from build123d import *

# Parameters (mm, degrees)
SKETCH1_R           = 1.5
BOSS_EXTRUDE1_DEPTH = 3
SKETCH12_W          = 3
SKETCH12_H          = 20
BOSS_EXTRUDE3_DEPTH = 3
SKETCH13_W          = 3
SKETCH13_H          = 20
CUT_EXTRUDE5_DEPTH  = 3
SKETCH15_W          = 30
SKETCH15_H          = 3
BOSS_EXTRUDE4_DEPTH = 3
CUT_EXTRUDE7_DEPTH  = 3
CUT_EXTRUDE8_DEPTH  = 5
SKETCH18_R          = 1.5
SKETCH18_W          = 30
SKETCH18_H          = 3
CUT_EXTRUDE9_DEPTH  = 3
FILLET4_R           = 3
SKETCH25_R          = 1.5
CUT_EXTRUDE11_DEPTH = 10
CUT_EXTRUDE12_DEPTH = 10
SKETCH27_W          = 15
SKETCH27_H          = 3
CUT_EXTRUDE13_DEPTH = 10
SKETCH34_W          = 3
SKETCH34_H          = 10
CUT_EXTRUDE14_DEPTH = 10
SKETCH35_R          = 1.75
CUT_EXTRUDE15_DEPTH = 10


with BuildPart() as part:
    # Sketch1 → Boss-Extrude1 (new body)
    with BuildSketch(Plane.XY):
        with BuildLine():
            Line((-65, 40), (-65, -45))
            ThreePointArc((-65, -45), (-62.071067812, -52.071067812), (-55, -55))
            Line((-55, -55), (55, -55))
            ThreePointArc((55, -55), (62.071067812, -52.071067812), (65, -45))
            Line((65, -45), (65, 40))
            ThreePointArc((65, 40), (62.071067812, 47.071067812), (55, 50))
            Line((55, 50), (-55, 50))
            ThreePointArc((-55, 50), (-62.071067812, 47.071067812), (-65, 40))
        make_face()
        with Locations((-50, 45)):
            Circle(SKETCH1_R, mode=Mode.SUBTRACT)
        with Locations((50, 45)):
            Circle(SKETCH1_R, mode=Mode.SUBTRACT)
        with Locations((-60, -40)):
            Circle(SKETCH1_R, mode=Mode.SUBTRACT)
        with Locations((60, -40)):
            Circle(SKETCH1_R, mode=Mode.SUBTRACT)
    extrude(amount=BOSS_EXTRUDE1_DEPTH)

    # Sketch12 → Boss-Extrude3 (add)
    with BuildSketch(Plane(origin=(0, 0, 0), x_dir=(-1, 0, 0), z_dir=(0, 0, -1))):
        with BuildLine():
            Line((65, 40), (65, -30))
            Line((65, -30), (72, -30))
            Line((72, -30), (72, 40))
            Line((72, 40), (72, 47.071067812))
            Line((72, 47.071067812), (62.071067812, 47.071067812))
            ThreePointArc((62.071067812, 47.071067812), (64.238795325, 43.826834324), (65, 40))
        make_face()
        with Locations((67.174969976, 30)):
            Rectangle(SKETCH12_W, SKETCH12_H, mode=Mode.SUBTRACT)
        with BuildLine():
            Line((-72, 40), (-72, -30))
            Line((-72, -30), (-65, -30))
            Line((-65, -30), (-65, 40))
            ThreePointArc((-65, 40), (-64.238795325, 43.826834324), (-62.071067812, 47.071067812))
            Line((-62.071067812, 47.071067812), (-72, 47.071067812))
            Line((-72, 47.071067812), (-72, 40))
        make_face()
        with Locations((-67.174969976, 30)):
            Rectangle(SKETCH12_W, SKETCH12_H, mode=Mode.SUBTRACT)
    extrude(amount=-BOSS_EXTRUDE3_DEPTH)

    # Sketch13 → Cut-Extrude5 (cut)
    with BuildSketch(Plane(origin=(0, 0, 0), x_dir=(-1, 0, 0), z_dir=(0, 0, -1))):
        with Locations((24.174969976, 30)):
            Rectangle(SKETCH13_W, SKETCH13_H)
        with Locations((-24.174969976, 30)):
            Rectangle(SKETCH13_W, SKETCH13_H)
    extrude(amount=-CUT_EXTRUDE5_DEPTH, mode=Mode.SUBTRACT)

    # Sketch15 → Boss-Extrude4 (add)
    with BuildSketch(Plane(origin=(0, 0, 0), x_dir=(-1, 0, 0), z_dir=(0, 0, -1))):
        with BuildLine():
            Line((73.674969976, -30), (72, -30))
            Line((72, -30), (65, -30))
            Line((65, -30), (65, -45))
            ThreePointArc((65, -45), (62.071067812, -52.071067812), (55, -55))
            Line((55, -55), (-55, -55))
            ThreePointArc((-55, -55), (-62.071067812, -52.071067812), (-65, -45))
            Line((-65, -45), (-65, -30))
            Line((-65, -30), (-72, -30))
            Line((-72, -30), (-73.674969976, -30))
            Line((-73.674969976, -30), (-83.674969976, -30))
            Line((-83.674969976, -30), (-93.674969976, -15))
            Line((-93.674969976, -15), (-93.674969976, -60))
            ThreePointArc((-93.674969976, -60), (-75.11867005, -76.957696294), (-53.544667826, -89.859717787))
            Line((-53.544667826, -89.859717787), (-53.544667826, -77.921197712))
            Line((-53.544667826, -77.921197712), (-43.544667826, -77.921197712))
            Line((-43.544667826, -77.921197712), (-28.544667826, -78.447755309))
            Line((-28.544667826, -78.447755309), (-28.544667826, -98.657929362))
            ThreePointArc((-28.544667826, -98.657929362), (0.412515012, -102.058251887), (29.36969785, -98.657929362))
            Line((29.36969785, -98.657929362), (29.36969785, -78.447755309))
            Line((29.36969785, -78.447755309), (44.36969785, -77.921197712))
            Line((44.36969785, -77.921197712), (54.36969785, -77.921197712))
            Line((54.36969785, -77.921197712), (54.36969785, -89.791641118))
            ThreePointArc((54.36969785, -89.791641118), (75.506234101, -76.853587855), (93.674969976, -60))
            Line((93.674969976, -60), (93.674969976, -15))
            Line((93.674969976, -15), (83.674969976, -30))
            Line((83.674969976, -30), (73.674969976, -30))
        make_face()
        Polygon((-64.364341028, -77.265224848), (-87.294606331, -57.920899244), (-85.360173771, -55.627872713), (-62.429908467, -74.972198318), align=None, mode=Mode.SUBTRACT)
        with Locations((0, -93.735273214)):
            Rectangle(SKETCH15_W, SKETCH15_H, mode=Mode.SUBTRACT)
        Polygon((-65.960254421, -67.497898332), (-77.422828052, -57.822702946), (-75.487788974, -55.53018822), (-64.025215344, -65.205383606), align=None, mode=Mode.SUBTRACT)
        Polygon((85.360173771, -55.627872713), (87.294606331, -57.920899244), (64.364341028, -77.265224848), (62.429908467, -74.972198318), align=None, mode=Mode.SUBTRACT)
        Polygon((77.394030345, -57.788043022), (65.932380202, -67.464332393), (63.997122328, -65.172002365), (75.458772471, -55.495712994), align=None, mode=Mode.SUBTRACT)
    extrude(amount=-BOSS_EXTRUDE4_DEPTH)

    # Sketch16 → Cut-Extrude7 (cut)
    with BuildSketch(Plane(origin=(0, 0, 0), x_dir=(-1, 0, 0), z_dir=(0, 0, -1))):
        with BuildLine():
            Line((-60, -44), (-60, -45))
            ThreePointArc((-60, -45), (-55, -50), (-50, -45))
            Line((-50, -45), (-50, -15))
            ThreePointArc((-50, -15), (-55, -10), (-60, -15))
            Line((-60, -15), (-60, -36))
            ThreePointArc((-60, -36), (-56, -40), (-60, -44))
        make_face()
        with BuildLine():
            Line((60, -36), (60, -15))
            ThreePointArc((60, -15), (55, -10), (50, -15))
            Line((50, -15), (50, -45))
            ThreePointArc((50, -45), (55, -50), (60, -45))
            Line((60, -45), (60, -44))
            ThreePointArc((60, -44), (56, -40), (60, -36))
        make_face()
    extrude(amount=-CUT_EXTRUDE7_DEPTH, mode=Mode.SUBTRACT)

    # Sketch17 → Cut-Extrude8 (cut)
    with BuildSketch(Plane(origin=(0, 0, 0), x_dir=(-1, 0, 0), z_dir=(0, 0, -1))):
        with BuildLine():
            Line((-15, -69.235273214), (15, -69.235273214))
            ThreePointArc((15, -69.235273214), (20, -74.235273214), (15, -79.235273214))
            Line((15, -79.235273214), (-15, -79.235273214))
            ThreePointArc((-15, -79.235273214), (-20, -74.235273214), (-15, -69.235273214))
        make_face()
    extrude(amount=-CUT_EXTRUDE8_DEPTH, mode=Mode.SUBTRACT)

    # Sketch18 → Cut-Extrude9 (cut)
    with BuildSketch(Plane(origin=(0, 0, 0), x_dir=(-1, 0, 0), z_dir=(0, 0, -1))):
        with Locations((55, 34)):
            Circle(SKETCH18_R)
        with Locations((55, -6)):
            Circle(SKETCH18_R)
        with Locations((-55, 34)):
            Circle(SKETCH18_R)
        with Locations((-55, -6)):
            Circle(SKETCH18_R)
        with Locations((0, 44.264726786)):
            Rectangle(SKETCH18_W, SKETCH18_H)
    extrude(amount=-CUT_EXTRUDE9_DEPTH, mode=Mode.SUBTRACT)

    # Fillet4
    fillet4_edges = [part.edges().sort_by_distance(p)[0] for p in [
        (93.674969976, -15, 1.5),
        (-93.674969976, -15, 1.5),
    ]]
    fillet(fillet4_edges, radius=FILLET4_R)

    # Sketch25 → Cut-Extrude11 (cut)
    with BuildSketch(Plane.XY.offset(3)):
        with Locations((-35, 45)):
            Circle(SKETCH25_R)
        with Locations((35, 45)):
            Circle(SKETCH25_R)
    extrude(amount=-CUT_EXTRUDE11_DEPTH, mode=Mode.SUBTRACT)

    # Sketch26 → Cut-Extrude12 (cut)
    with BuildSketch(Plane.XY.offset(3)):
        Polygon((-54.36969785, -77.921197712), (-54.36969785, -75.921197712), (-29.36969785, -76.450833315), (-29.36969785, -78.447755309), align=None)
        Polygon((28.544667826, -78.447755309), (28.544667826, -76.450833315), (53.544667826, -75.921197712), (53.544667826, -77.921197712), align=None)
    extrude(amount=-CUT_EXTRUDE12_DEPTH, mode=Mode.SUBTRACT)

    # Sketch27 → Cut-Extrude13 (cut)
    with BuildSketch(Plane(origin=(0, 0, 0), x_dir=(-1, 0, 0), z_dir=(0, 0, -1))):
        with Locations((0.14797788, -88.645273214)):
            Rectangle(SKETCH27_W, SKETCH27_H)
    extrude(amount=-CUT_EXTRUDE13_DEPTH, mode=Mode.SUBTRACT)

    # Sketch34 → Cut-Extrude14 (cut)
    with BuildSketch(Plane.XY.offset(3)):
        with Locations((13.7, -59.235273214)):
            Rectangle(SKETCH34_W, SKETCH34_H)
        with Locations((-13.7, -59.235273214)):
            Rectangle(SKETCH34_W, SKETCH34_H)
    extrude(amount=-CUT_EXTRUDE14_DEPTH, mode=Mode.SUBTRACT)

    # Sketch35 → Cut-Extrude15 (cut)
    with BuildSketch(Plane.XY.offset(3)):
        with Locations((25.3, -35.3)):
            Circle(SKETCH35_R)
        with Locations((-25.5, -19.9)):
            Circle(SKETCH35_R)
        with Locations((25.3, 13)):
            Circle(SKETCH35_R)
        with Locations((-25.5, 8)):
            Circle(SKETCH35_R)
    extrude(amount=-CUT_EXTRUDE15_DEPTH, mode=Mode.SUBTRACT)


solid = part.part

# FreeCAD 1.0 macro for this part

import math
import FreeCAD as App
import Part
import Sketcher
from FreeCAD import Vector


def edges_at(feature, points):
    """Names of the edges that pass closest to the given points."""
    edges = feature.Shape.Edges
    near = lambda p: min(range(len(edges)), key=lambda i: edges[i].distToShape(Part.Vertex(*p))[0])
    return sorted({f"Edge{near(p) + 1}" for p in points})

doc = App.newDocument("Part")
body = doc.addObject("PartDesign::Body", "Body")

# Sketch on XY plane
sketch1 = body.newObject("Sketcher::SketchObject", "Sketch")
sketch1.AttachmentSupport = (doc.getObject("XY_Plane"), [""])
sketch1.MapMode = "FlatFace"
sketch1.addGeometry([
    Part.LineSegment(Vector(-65, 40, 0), Vector(-65, -45, 0)),  # 0
    Part.ArcOfCircle(Part.Circle(Vector(-55, -45, 0), Vector(0, 0, 1), 10), math.radians(180), math.radians(270)),  # 1
    Part.LineSegment(Vector(-55, -55, 0), Vector(55, -55, 0)),  # 2
    Part.ArcOfCircle(Part.Circle(Vector(55, -45, 0), Vector(0, 0, 1), 10), math.radians(-90), math.radians(0)),  # 3
    Part.LineSegment(Vector(65, -45, 0), Vector(65, 40, 0)),  # 4
    Part.ArcOfCircle(Part.Circle(Vector(55, 40, 0), Vector(0, 0, 1), 10), math.radians(0), math.radians(90)),  # 5
    Part.LineSegment(Vector(55, 50, 0), Vector(-55, 50, 0)),  # 6
    Part.ArcOfCircle(Part.Circle(Vector(-55, 40, 0), Vector(0, 0, 1), 10), math.radians(90), math.radians(180)),  # 7
    Part.Circle(Vector(-60, -40, 0), Vector(0, 0, 1), 1.5),  # 8
    Part.Circle(Vector(60, -40, 0), Vector(0, 0, 1), 1.5),  # 9
    Part.Circle(Vector(-50, 45, 0), Vector(0, 0, 1), 1.5),  # 10
    Part.Circle(Vector(50, 45, 0), Vector(0, 0, 1), 1.5),  # 11
], False)
sketch1.addConstraint([
    Sketcher.Constraint("Tangent", 0, 2, 1, 1),
    Sketcher.Constraint("Tangent", 1, 2, 2, 1),
    Sketcher.Constraint("Tangent", 2, 2, 3, 1),
    Sketcher.Constraint("Tangent", 3, 2, 4, 1),
    Sketcher.Constraint("Tangent", 4, 2, 5, 1),
    Sketcher.Constraint("Tangent", 5, 2, 6, 1),
    Sketcher.Constraint("Tangent", 6, 2, 7, 1),
    Sketcher.Constraint("Tangent", 7, 2, 0, 1),
    Sketcher.Constraint("Vertical", 0),
    Sketcher.Constraint("Horizontal", 2),
    Sketcher.Constraint("Vertical", 4),
    Sketcher.Constraint("Horizontal", 6),
    Sketcher.Constraint("Equal", 1, 3),
    Sketcher.Constraint("Equal", 3, 5),
    Sketcher.Constraint("Equal", 5, 7),
    Sketcher.Constraint("Equal", 8, 9),
    Sketcher.Constraint("Equal", 9, 10),
    Sketcher.Constraint("Equal", 10, 11),
    Sketcher.Constraint("Symmetric", 8, 3, 9, 3, -2),
    Sketcher.Constraint("Symmetric", 10, 3, 11, 3, -2),
    Sketcher.Constraint("Diameter", 8, 3.0),
    Sketcher.Constraint("Radius", 1, 10.0),
    Sketcher.Constraint("DistanceX", 2, 1, 2, 2, 110.0),
    Sketcher.Constraint("DistanceY", 0, 2, 0, 1, 85.0),
    Sketcher.Constraint("DistanceX", 1, 3, -1, 1, 55.0),
    Sketcher.Constraint("DistanceY", 1, 3, -1, 1, 45.0),
    Sketcher.Constraint("DistanceX", 8, 3, -1, 1, 60.0),
    Sketcher.Constraint("DistanceY", 8, 3, -1, 1, 40.0),
    Sketcher.Constraint("DistanceX", 10, 3, -1, 1, 50.0),
    Sketcher.Constraint("DistanceY", -1, 1, 10, 3, 45.0),
])
pad1 = body.newObject("PartDesign::Pad", "Pad")
pad1.Profile = sketch1
pad1.Length = 3

# Sketch on XY plane
sketch2 = body.newObject("Sketcher::SketchObject", "Sketch001")
sketch2.AttachmentSupport = (doc.getObject("XY_Plane"), [""])
sketch2.MapMode = "FlatFace"
sketch2.addGeometry([
    Part.LineSegment(Vector(-65, 40, 0), Vector(-65, -30, 0)),  # 0
    Part.LineSegment(Vector(-65, -30, 0), Vector(-72, -30, 0)),  # 1
    Part.LineSegment(Vector(-72, -30, 0), Vector(-72, 47.1, 0)),  # 2
    Part.LineSegment(Vector(-72, 47.1, 0), Vector(-62.1, 47.1, 0)),  # 3
    Part.ArcOfCircle(Part.Circle(Vector(-55, 40, 0), Vector(0, 0, 1), 10), math.radians(135), math.radians(180)),  # 4
    Part.LineSegment(Vector(-68.7, 20, 0), Vector(-65.7, 20, 0)),  # 5
    Part.LineSegment(Vector(-65.7, 20, 0), Vector(-65.7, 40, 0)),  # 6
    Part.LineSegment(Vector(-65.7, 40, 0), Vector(-68.7, 40, 0)),  # 7
    Part.LineSegment(Vector(-68.7, 40, 0), Vector(-68.7, 20, 0)),  # 8
    Part.LineSegment(Vector(72, -30, 0), Vector(65, -30, 0)),  # 9
    Part.LineSegment(Vector(65, -30, 0), Vector(65, 40, 0)),  # 10
    Part.ArcOfCircle(Part.Circle(Vector(55, 40, 0), Vector(0, 0, 1), 10), math.radians(0), math.radians(45)),  # 11
    Part.LineSegment(Vector(62.1, 47.1, 0), Vector(72, 47.1, 0)),  # 12
    Part.LineSegment(Vector(72, 47.1, 0), Vector(72, -30, 0)),  # 13
    Part.LineSegment(Vector(65.7, 20, 0), Vector(68.7, 20, 0)),  # 14
    Part.LineSegment(Vector(68.7, 20, 0), Vector(68.7, 40, 0)),  # 15
    Part.LineSegment(Vector(68.7, 40, 0), Vector(65.7, 40, 0)),  # 16
    Part.LineSegment(Vector(65.7, 40, 0), Vector(65.7, 20, 0)),  # 17
], False)
sketch2.addConstraint([
    Sketcher.Constraint("Coincident", 0, 2, 1, 1),
    Sketcher.Constraint("Coincident", 1, 2, 2, 1),
    Sketcher.Constraint("Coincident", 2, 2, 3, 1),
    Sketcher.Constraint("Coincident", 3, 2, 4, 1),
    Sketcher.Constraint("Tangent", 4, 2, 0, 1),
    Sketcher.Constraint("Coincident", 5, 2, 6, 1),
    Sketcher.Constraint("Coincident", 6, 2, 7, 1),
    Sketcher.Constraint("Coincident", 7, 2, 8, 1),
    Sketcher.Constraint("Coincident", 8, 2, 5, 1),
    Sketcher.Constraint("Coincident", 9, 2, 10, 1),
    Sketcher.Constraint("Tangent", 10, 2, 11, 1),
    Sketcher.Constraint("Coincident", 11, 2, 12, 1),
    Sketcher.Constraint("Coincident", 12, 2, 13, 1),
    Sketcher.Constraint("Coincident", 13, 2, 9, 1),
    Sketcher.Constraint("Coincident", 14, 2, 15, 1),
    Sketcher.Constraint("Coincident", 15, 2, 16, 1),
    Sketcher.Constraint("Coincident", 16, 2, 17, 1),
    Sketcher.Constraint("Coincident", 17, 2, 14, 1),
    Sketcher.Constraint("Vertical", 0),
    Sketcher.Constraint("Horizontal", 1),
    Sketcher.Constraint("Vertical", 2),
    Sketcher.Constraint("Horizontal", 3),
    Sketcher.Constraint("Horizontal", 5),
    Sketcher.Constraint("Vertical", 6),
    Sketcher.Constraint("Horizontal", 7),
    Sketcher.Constraint("Vertical", 8),
    Sketcher.Constraint("Horizontal", 9),
    Sketcher.Constraint("Vertical", 10),
    Sketcher.Constraint("Horizontal", 12),
    Sketcher.Constraint("Vertical", 13),
    Sketcher.Constraint("Horizontal", 14),
    Sketcher.Constraint("Vertical", 15),
    Sketcher.Constraint("Horizontal", 16),
    Sketcher.Constraint("Vertical", 17),
    Sketcher.Constraint("Equal", 4, 11),
    Sketcher.Constraint("Symmetric", 4, 3, 11, 3, -2),
    Sketcher.Constraint("Symmetric", 2, 2, 12, 2, -2),
    Sketcher.Constraint("Symmetric", 8, 2, 14, 2, -2),
    Sketcher.Constraint("Symmetric", 6, 2, 16, 2, -2),
    Sketcher.Constraint("Horizontal", 4, 2, 6, 2),
    Sketcher.Constraint("Horizontal", 1, 2, 9, 2),
    Sketcher.Constraint("Radius", 4, 10.0),
    Sketcher.Constraint("DistanceX", 1, 2, 1, 1, 7.0),
    Sketcher.Constraint("DistanceX", 5, 1, 5, 2, 3.0),
    Sketcher.Constraint("DistanceY", 0, 2, 0, 1, 70.0),
    Sketcher.Constraint("DistanceY", 6, 1, 6, 2, 20.0),
    Sketcher.Constraint("DistanceX", 4, 3, -1, 1, 55.0),
    Sketcher.Constraint("DistanceY", -1, 1, 4, 3, 40.0),
    Sketcher.Constraint("DistanceX", 3, 1, 3, 2, 9.928932),
    Sketcher.Constraint("DistanceX", 5, 2, -1, 1, 65.67497),
])
pad2 = body.newObject("PartDesign::Pad", "Pad001")
pad2.Profile = sketch2
pad2.Length = 3

# Sketch on XY plane
sketch3 = body.newObject("Sketcher::SketchObject", "Sketch002")
sketch3.AttachmentSupport = (doc.getObject("XY_Plane"), [""])
sketch3.MapMode = "FlatFace"
sketch3.addGeometry([
    Part.LineSegment(Vector(-22.7, 40, 0), Vector(-22.7, 20, 0)),  # 0
    Part.LineSegment(Vector(-22.7, 20, 0), Vector(-25.7, 20, 0)),  # 1
    Part.LineSegment(Vector(-25.7, 20, 0), Vector(-25.7, 40, 0)),  # 2
    Part.LineSegment(Vector(-25.7, 40, 0), Vector(-22.7, 40, 0)),  # 3
    Part.LineSegment(Vector(25.7, 40, 0), Vector(25.7, 20, 0)),  # 4
    Part.LineSegment(Vector(25.7, 20, 0), Vector(22.7, 20, 0)),  # 5
    Part.LineSegment(Vector(22.7, 20, 0), Vector(22.7, 40, 0)),  # 6
    Part.LineSegment(Vector(22.7, 40, 0), Vector(25.7, 40, 0)),  # 7
], False)
sketch3.addConstraint([
    Sketcher.Constraint("Coincident", 0, 2, 1, 1),
    Sketcher.Constraint("Coincident", 1, 2, 2, 1),
    Sketcher.Constraint("Coincident", 2, 2, 3, 1),
    Sketcher.Constraint("Coincident", 3, 2, 0, 1),
    Sketcher.Constraint("Coincident", 4, 2, 5, 1),
    Sketcher.Constraint("Coincident", 5, 2, 6, 1),
    Sketcher.Constraint("Coincident", 6, 2, 7, 1),
    Sketcher.Constraint("Coincident", 7, 2, 4, 1),
    Sketcher.Constraint("Vertical", 0),
    Sketcher.Constraint("Horizontal", 1),
    Sketcher.Constraint("Vertical", 2),
    Sketcher.Constraint("Horizontal", 3),
    Sketcher.Constraint("Vertical", 4),
    Sketcher.Constraint("Horizontal", 5),
    Sketcher.Constraint("Vertical", 6),
    Sketcher.Constraint("Horizontal", 7),
    Sketcher.Constraint("Symmetric", 1, 2, 4, 2, -2),
    Sketcher.Constraint("Symmetric", 3, 2, 6, 2, -2),
    Sketcher.Constraint("DistanceX", 1, 2, 1, 1, 3.0),
    Sketcher.Constraint("DistanceY", 0, 2, 0, 1, 20.0),
    Sketcher.Constraint("DistanceY", -1, 1, 0, 2, 20.0),
    Sketcher.Constraint("DistanceX", 0, 2, -1, 1, 22.67497),
])
pocket1 = body.newObject("PartDesign::Pocket", "Pocket")
pocket1.Profile = sketch3
pocket1.Length = 3
pocket1.Reversed = True

# Sketch on XY plane
sketch4 = body.newObject("Sketcher::SketchObject", "Sketch003")
sketch4.AttachmentSupport = (doc.getObject("XY_Plane"), [""])
sketch4.MapMode = "FlatFace"
sketch4.addGeometry([
    Part.LineSegment(Vector(-65, -30, 0), Vector(-65, -45, 0)),  # 0
    Part.ArcOfCircle(Part.Circle(Vector(-55, -45, 0), Vector(0, 0, 1), 10), math.radians(180), math.radians(270)),  # 1
    Part.LineSegment(Vector(-55, -55, 0), Vector(55, -55, 0)),  # 2
    Part.ArcOfCircle(Part.Circle(Vector(55, -45, 0), Vector(0, 0, 1), 10), math.radians(-90), math.radians(0)),  # 3
    Part.LineSegment(Vector(65, -45, 0), Vector(65, -30, 0)),  # 4
    Part.LineSegment(Vector(65, -30, 0), Vector(83.7, -30, 0)),  # 5
    Part.LineSegment(Vector(83.7, -30, 0), Vector(93.7, -15, 0)),  # 6
    Part.LineSegment(Vector(93.7, -15, 0), Vector(93.7, -60, 0)),  # 7
    Part.ArcOfCircle(Part.Circle(Vector(0.5, 23.3, 0), Vector(0, 0, 1), 125), math.radians(-65), math.radians(-42)),  # 8
    Part.LineSegment(Vector(53.5, -89.9, 0), Vector(53.5, -77.9, 0)),  # 9
    Part.LineSegment(Vector(53.5, -77.9, 0), Vector(43.5, -77.9, 0)),  # 10
    Part.LineSegment(Vector(43.5, -77.9, 0), Vector(28.5, -78.4, 0)),  # 11
    Part.LineSegment(Vector(28.5, -78.4, 0), Vector(28.5, -98.7, 0)),  # 12
    Part.ArcOfCircle(Part.Circle(Vector(-0.4, 22.9, 0), Vector(0, 0, 1), 125), math.radians(-103), math.radians(-77)),  # 13
    Part.LineSegment(Vector(-29.4, -98.7, 0), Vector(-29.4, -78.4, 0)),  # 14
    Part.LineSegment(Vector(-29.4, -78.4, 0), Vector(-44.4, -77.9, 0)),  # 15
    Part.LineSegment(Vector(-44.4, -77.9, 0), Vector(-54.4, -77.9, 0)),  # 16
    Part.LineSegment(Vector(-54.4, -77.9, 0), Vector(-54.4, -89.8, 0)),  # 17
    Part.ArcOfCircle(Part.Circle(Vector(0, 22.8, 0), Vector(0, 0, 1), 125), math.radians(-139), math.radians(-116)),  # 18
    Part.LineSegment(Vector(-93.7, -60, 0), Vector(-93.7, -15, 0)),  # 19
    Part.LineSegment(Vector(-93.7, -15, 0), Vector(-83.7, -30, 0)),  # 20
    Part.LineSegment(Vector(-83.7, -30, 0), Vector(-65, -30, 0)),  # 21
    Part.LineSegment(Vector(-15, -95.2, 0), Vector(15, -95.2, 0)),  # 22
    Part.LineSegment(Vector(15, -95.2, 0), Vector(15, -92.2, 0)),  # 23
    Part.LineSegment(Vector(15, -92.2, 0), Vector(-15, -92.2, 0)),  # 24
    Part.LineSegment(Vector(-15, -92.2, 0), Vector(-15, -95.2, 0)),  # 25
    Part.LineSegment(Vector(62.4, -75, 0), Vector(64.4, -77.3, 0)),  # 26
    Part.LineSegment(Vector(64.4, -77.3, 0), Vector(87.3, -57.9, 0)),  # 27
    Part.LineSegment(Vector(87.3, -57.9, 0), Vector(85.4, -55.6, 0)),  # 28
    Part.LineSegment(Vector(85.4, -55.6, 0), Vector(62.4, -75, 0)),  # 29
    Part.LineSegment(Vector(64, -65.2, 0), Vector(66, -67.5, 0)),  # 30
    Part.LineSegment(Vector(66, -67.5, 0), Vector(77.4, -57.8, 0)),  # 31
    Part.LineSegment(Vector(77.4, -57.8, 0), Vector(75.5, -55.5, 0)),  # 32
    Part.LineSegment(Vector(75.5, -55.5, 0), Vector(64, -65.2, 0)),  # 33
    Part.LineSegment(Vector(-62.4, -75, 0), Vector(-85.4, -55.6, 0)),  # 34
    Part.LineSegment(Vector(-85.4, -55.6, 0), Vector(-87.3, -57.9, 0)),  # 35
    Part.LineSegment(Vector(-87.3, -57.9, 0), Vector(-64.4, -77.3, 0)),  # 36
    Part.LineSegment(Vector(-64.4, -77.3, 0), Vector(-62.4, -75, 0)),  # 37
    Part.LineSegment(Vector(-75.5, -55.5, 0), Vector(-77.4, -57.8, 0)),  # 38
    Part.LineSegment(Vector(-77.4, -57.8, 0), Vector(-65.9, -67.5, 0)),  # 39
    Part.LineSegment(Vector(-65.9, -67.5, 0), Vector(-64, -65.2, 0)),  # 40
    Part.LineSegment(Vector(-64, -65.2, 0), Vector(-75.5, -55.5, 0)),  # 41
], False)
sketch4.addConstraint([
    Sketcher.Constraint("Tangent", 0, 2, 1, 1),
    Sketcher.Constraint("Tangent", 1, 2, 2, 1),
    Sketcher.Constraint("Tangent", 2, 2, 3, 1),
    Sketcher.Constraint("Tangent", 3, 2, 4, 1),
    Sketcher.Constraint("Coincident", 4, 2, 5, 1),
    Sketcher.Constraint("Coincident", 5, 2, 6, 1),
    Sketcher.Constraint("Coincident", 6, 2, 7, 1),
    Sketcher.Constraint("Coincident", 7, 2, 8, 2),
    Sketcher.Constraint("Coincident", 8, 1, 9, 1),
    Sketcher.Constraint("Coincident", 9, 2, 10, 1),
    Sketcher.Constraint("Coincident", 10, 2, 11, 1),
    Sketcher.Constraint("Coincident", 11, 2, 12, 1),
    Sketcher.Constraint("Coincident", 12, 2, 13, 2),
    Sketcher.Constraint("Coincident", 13, 1, 14, 1),
    Sketcher.Constraint("Coincident", 14, 2, 15, 1),
    Sketcher.Constraint("Coincident", 15, 2, 16, 1),
    Sketcher.Constraint("Coincident", 16, 2, 17, 1),
    Sketcher.Constraint("Coincident", 17, 2, 18, 2),
    Sketcher.Constraint("Coincident", 18, 1, 19, 1),
    Sketcher.Constraint("Coincident", 19, 2, 20, 1),
    Sketcher.Constraint("Coincident", 20, 2, 21, 1),
    Sketcher.Constraint("Coincident", 21, 2, 0, 1),
    Sketcher.Constraint("Coincident", 22, 2, 23, 1),
    Sketcher.Constraint("Coincident", 23, 2, 24, 1),
    Sketcher.Constraint("Coincident", 24, 2, 25, 1),
    Sketcher.Constraint("Coincident", 25, 2, 22, 1),
    Sketcher.Constraint("Coincident", 26, 2, 27, 1),
    Sketcher.Constraint("Coincident", 27, 2, 28, 1),
    Sketcher.Constraint("Coincident", 28, 2, 29, 1),
    Sketcher.Constraint("Coincident", 29, 2, 26, 1),
    Sketcher.Constraint("Coincident", 30, 2, 31, 1),
    Sketcher.Constraint("Coincident", 31, 2, 32, 1),
    Sketcher.Constraint("Coincident", 32, 2, 33, 1),
    Sketcher.Constraint("Coincident", 33, 2, 30, 1),
    Sketcher.Constraint("Coincident", 34, 2, 35, 1),
    Sketcher.Constraint("Coincident", 35, 2, 36, 1),
    Sketcher.Constraint("Coincident", 36, 2, 37, 1),
    Sketcher.Constraint("Coincident", 37, 2, 34, 1),
    Sketcher.Constraint("Coincident", 38, 2, 39, 1),
    Sketcher.Constraint("Coincident", 39, 2, 40, 1),
    Sketcher.Constraint("Coincident", 40, 2, 41, 1),
    Sketcher.Constraint("Coincident", 41, 2, 38, 1),
    Sketcher.Constraint("Vertical", 0),
    Sketcher.Constraint("Horizontal", 2),
    Sketcher.Constraint("Vertical", 4),
    Sketcher.Constraint("Horizontal", 5),
    Sketcher.Constraint("Vertical", 7),
    Sketcher.Constraint("Vertical", 9),
    Sketcher.Constraint("Horizontal", 10),
    Sketcher.Constraint("Vertical", 12),
    Sketcher.Constraint("Vertical", 14),
    Sketcher.Constraint("Horizontal", 16),
    Sketcher.Constraint("Vertical", 17),
    Sketcher.Constraint("Vertical", 19),
    Sketcher.Constraint("Horizontal", 21),
    Sketcher.Constraint("Horizontal", 22),
    Sketcher.Constraint("Vertical", 23),
    Sketcher.Constraint("Horizontal", 24),
    Sketcher.Constraint("Vertical", 25),
    Sketcher.Constraint("Equal", 1, 3),
    Sketcher.Constraint("Equal", 8, 13),
    Sketcher.Constraint("Equal", 13, 18),
    Sketcher.Constraint("Symmetric", 7, 2, 18, 1, -2),
    Sketcher.Constraint("Symmetric", 5, 2, 20, 2, -2),
    Sketcher.Constraint("Symmetric", 28, 2, 34, 2, -2),
    Sketcher.Constraint("Symmetric", 27, 2, 35, 2, -2),
    Sketcher.Constraint("Symmetric", 26, 2, 36, 2, -2),
    Sketcher.Constraint("Symmetric", 29, 2, 37, 2, -2),
    Sketcher.Constraint("PointOnObject", 18, 3, -2),
    Sketcher.Constraint("Perpendicular", 26, 27),
    Sketcher.Constraint("Perpendicular", 27, 28),
    Sketcher.Constraint("Perpendicular", 28, 29),
    Sketcher.Constraint("Perpendicular", 30, 31),
    Sketcher.Constraint("Perpendicular", 31, 32),
    Sketcher.Constraint("Perpendicular", 32, 33),
    Sketcher.Constraint("Perpendicular", 38, 39),
    Sketcher.Constraint("Perpendicular", 39, 40),
    Sketcher.Constraint("Perpendicular", 40, 41),
    Sketcher.Constraint("Horizontal", 12, 2, 13, 1),
    Sketcher.Constraint("Horizontal", 11, 2, 14, 2),
    Sketcher.Constraint("Horizontal", 10, 2, 15, 2),
    Sketcher.Constraint("Horizontal", 6, 2, 19, 2),
    Sketcher.Constraint("Equal", 10, 16),
    Sketcher.Constraint("Equal", 5, 21),
    Sketcher.Constraint("Equal", 11, 15),
    Sketcher.Constraint("Equal", 28, 30),
    Sketcher.Constraint("Equal", 37, 38),
    Sketcher.Constraint("Equal", 33, 39),
    Sketcher.Constraint("Radius", 1, 10.0),
    Sketcher.Constraint("Radius", 8, 125.0),
    Sketcher.Constraint("DistanceX", 2, 1, 2, 2, 110.0),
    Sketcher.Constraint("DistanceX", 10, 2, 10, 1, 10.0),
    Sketcher.Constraint("DistanceX", 22, 1, 22, 2, 30.0),
    Sketcher.Constraint("DistanceY", 0, 2, 0, 1, 15.0),
    Sketcher.Constraint("DistanceY", 7, 2, 7, 1, 45.0),
    Sketcher.Constraint("DistanceY", 23, 1, 23, 2, 3.0),
    Sketcher.Constraint("Distance", 26, 3.0),
    Sketcher.Constraint("Distance", 27, 30.0),
    Sketcher.Constraint("Distance", 31, 15.0),
    Sketcher.Constraint("DistanceY", 1, 3, -1, 1, 45.0),
    Sketcher.Constraint("DistanceY", 6, 2, -1, 1, 15.0),
    Sketcher.Constraint("DistanceX", -1, 1, 22, 2, 15.0),
    Sketcher.Constraint("DistanceX", 5, 2, 6, 2, 10.0),
    Sketcher.Constraint("DistanceX", 11, 2, 10, 2, 15.0),
    Sketcher.Constraint("DistanceY", 9, 2, 29, 2, 2.948999),
    Sketcher.Constraint("DistanceX", 5, 1, 5, 2, 18.67497),
    Sketcher.Constraint("DistanceY", 9, 1, 9, 2, 11.93852),
    Sketcher.Constraint("DistanceY", 27, 2, -1, 1, 57.920899),
    Sketcher.Constraint("DistanceY", 29, 2, -1, 1, 74.972198),
    Sketcher.Constraint("DistanceY", 30, 2, -1, 1, 67.497898),
    Sketcher.Constraint("DistanceX", 34, 2, 41, 2, 9.901401),
    Sketcher.Constraint("Distance", 11, 15.009239),
    Sketcher.Constraint("DistanceY", 12, 2, 12, 1, 20.210174),
    Sketcher.Constraint("DistanceY", 17, 2, 17, 1, 11.870443),
    Sketcher.Constraint("DistanceX", -1, 1, 8, 3, 0.499872),
    Sketcher.Constraint("DistanceX", -1, 1, 26, 2, 64.364341),
    Sketcher.Constraint("DistanceX", -1, 1, 31, 2, 77.422828),
    Sketcher.Constraint("DistanceX", -1, 1, 32, 2, 75.487789),
    Sketcher.Constraint("DistanceX", 38, 2, -1, 1, 77.39403),
    Sketcher.Constraint("DistanceY", 38, 2, 34, 2, 2.16017),
    Sketcher.Constraint("DistanceY", 22, 2, -1, 1, 95.235273),
])
pad3 = body.newObject("PartDesign::Pad", "Pad002")
pad3.Profile = sketch4
pad3.Length = 3

# Sketch on XY plane
sketch5 = body.newObject("Sketcher::SketchObject", "Sketch004")
sketch5.AttachmentSupport = (doc.getObject("XY_Plane"), [""])
sketch5.MapMode = "FlatFace"
sketch5.addGeometry([
    Part.LineSegment(Vector(60, -44, 0), Vector(60, -45, 0)),  # 0
    Part.ArcOfCircle(Part.Circle(Vector(55, -45, 0), Vector(0, 0, 1), 5), math.radians(180), math.radians(360)),  # 1
    Part.LineSegment(Vector(50, -45, 0), Vector(50, -15, 0)),  # 2
    Part.ArcOfCircle(Part.Circle(Vector(55, -15, 0), Vector(0, 0, 1), 5), math.radians(0), math.radians(180)),  # 3
    Part.LineSegment(Vector(60, -15, 0), Vector(60, -36, 0)),  # 4
    Part.ArcOfCircle(Part.Circle(Vector(60, -40, 0), Vector(0, 0, 1), 4), math.radians(90), math.radians(270)),  # 5
    Part.LineSegment(Vector(-60, -36, 0), Vector(-60, -15, 0)),  # 6
    Part.ArcOfCircle(Part.Circle(Vector(-55, -15, 0), Vector(0, 0, 1), 5), math.radians(0), math.radians(180)),  # 7
    Part.LineSegment(Vector(-50, -15, 0), Vector(-50, -45, 0)),  # 8
    Part.ArcOfCircle(Part.Circle(Vector(-55, -45, 0), Vector(0, 0, 1), 5), math.radians(180), math.radians(360)),  # 9
    Part.LineSegment(Vector(-60, -45, 0), Vector(-60, -44, 0)),  # 10
    Part.ArcOfCircle(Part.Circle(Vector(-60, -40, 0), Vector(0, 0, 1), 4), math.radians(-90), math.radians(90)),  # 11
], False)
sketch5.addConstraint([
    Sketcher.Constraint("Tangent", 0, 2, 1, 2),
    Sketcher.Constraint("Tangent", 1, 1, 2, 1),
    Sketcher.Constraint("Tangent", 2, 2, 3, 2),
    Sketcher.Constraint("Tangent", 3, 1, 4, 1),
    Sketcher.Constraint("Coincident", 4, 2, 5, 1),
    Sketcher.Constraint("Coincident", 5, 2, 0, 1),
    Sketcher.Constraint("Tangent", 6, 2, 7, 2),
    Sketcher.Constraint("Tangent", 7, 1, 8, 1),
    Sketcher.Constraint("Tangent", 8, 2, 9, 2),
    Sketcher.Constraint("Tangent", 9, 1, 10, 1),
    Sketcher.Constraint("Coincident", 10, 2, 11, 1),
    Sketcher.Constraint("Coincident", 11, 2, 6, 1),
    Sketcher.Constraint("Vertical", 0),
    Sketcher.Constraint("Vertical", 2),
    Sketcher.Constraint("Vertical", 4),
    Sketcher.Constraint("Vertical", 6),
    Sketcher.Constraint("Vertical", 8),
    Sketcher.Constraint("Vertical", 10),
    Sketcher.Constraint("Equal", 1, 3),
    Sketcher.Constraint("Equal", 3, 7),
    Sketcher.Constraint("Equal", 7, 9),
    Sketcher.Constraint("Equal", 5, 11),
    Sketcher.Constraint("Symmetric", 3, 3, 7, 3, -2),
    Sketcher.Constraint("Symmetric", 5, 3, 11, 3, -2),
    Sketcher.Constraint("Horizontal", 1, 3, 9, 3),
    Sketcher.Constraint("Vertical", 5, 3, 0, 2),
    Sketcher.Constraint("Radius", 1, 5.0),
    Sketcher.Constraint("Radius", 5, 4.0),
    Sketcher.Constraint("DistanceY", 0, 2, 0, 1, 1.0),
    Sketcher.Constraint("DistanceY", 2, 1, 2, 2, 30.0),
    Sketcher.Constraint("DistanceX", -1, 1, 1, 3, 55.0),
    Sketcher.Constraint("DistanceY", 1, 3, -1, 1, 45.0),
])
pocket2 = body.newObject("PartDesign::Pocket", "Pocket001")
pocket2.Profile = sketch5
pocket2.Length = 3
pocket2.Reversed = True

# Sketch on XY plane
sketch6 = body.newObject("Sketcher::SketchObject", "Sketch005")
sketch6.AttachmentSupport = (doc.getObject("XY_Plane"), [""])
sketch6.MapMode = "FlatFace"
sketch6.addGeometry([
    Part.LineSegment(Vector(-15, -69, 0), Vector(15, -69, 0)),
    Part.ArcOfCircle(Part.Circle(Vector(15, -74, 0), Vector(0, 0, 1), 5), math.radians(-90), math.radians(90)),
    Part.LineSegment(Vector(15, -79, 0), Vector(-15, -79, 0)),
    Part.ArcOfCircle(Part.Circle(Vector(-15, -74, 0), Vector(0, 0, 1), 5), math.radians(90), math.radians(270)),
], False)
sketch6.addConstraint([
    Sketcher.Constraint("Tangent", 0, 2, 1, 2),
    Sketcher.Constraint("Tangent", 1, 1, 2, 1),
    Sketcher.Constraint("Tangent", 2, 2, 3, 2),
    Sketcher.Constraint("Tangent", 3, 1, 0, 1),
    Sketcher.Constraint("Horizontal", 0),
    Sketcher.Constraint("Horizontal", 2),
    Sketcher.Constraint("Radius", 1, 5.0),
    Sketcher.Constraint("DistanceX", 0, 1, 0, 2, 30.0),
    Sketcher.Constraint("DistanceX", -1, 1, 1, 3, 15.0),
    Sketcher.Constraint("DistanceY", 1, 3, -1, 1, 74.235273),
])
pocket3 = body.newObject("PartDesign::Pocket", "Pocket002")
pocket3.Profile = sketch6
pocket3.Length = 5
pocket3.Reversed = True

# Sketch on XY plane
sketch7 = body.newObject("Sketcher::SketchObject", "Sketch006")
sketch7.AttachmentSupport = (doc.getObject("XY_Plane"), [""])
sketch7.MapMode = "FlatFace"
sketch7.addGeometry([
    Part.Circle(Vector(-55, 34, 0), Vector(0, 0, 1), 1.5),  # 0
    Part.Circle(Vector(-55, -6, 0), Vector(0, 0, 1), 1.5),  # 1
    Part.Circle(Vector(55, 34, 0), Vector(0, 0, 1), 1.5),  # 2
    Part.Circle(Vector(55, -6, 0), Vector(0, 0, 1), 1.5),  # 3
    Part.LineSegment(Vector(15, 45.8, 0), Vector(15, 42.8, 0)),  # 4
    Part.LineSegment(Vector(15, 42.8, 0), Vector(-15, 42.8, 0)),  # 5
    Part.LineSegment(Vector(-15, 42.8, 0), Vector(-15, 45.8, 0)),  # 6
    Part.LineSegment(Vector(-15, 45.8, 0), Vector(15, 45.8, 0)),  # 7
], False)
sketch7.addConstraint([
    Sketcher.Constraint("Coincident", 4, 2, 5, 1),
    Sketcher.Constraint("Coincident", 5, 2, 6, 1),
    Sketcher.Constraint("Coincident", 6, 2, 7, 1),
    Sketcher.Constraint("Coincident", 7, 2, 4, 1),
    Sketcher.Constraint("Vertical", 4),
    Sketcher.Constraint("Horizontal", 5),
    Sketcher.Constraint("Vertical", 6),
    Sketcher.Constraint("Horizontal", 7),
    Sketcher.Constraint("Equal", 0, 1),
    Sketcher.Constraint("Equal", 1, 2),
    Sketcher.Constraint("Equal", 2, 3),
    Sketcher.Constraint("Symmetric", 0, 3, 2, 3, -2),
    Sketcher.Constraint("Symmetric", 1, 3, 3, 3, -2),
    Sketcher.Constraint("Vertical", 0, 3, 1, 3),
    Sketcher.Constraint("Diameter", 0, 3.0),
    Sketcher.Constraint("DistanceX", 5, 2, 5, 1, 30.0),
    Sketcher.Constraint("DistanceY", 4, 2, 4, 1, 3.0),
    Sketcher.Constraint("DistanceX", 0, 3, -1, 1, 55.0),
    Sketcher.Constraint("DistanceY", -1, 1, 0, 3, 34.0),
    Sketcher.Constraint("DistanceY", 1, 3, -1, 1, 6.0),
    Sketcher.Constraint("DistanceX", -1, 1, 4, 2, 15.0),
    Sketcher.Constraint("DistanceY", -1, 1, 4, 2, 42.764727),
])
pocket4 = body.newObject("PartDesign::Pocket", "Pocket003")
pocket4.Profile = sketch7
pocket4.Length = 3
pocket4.Reversed = True
doc.recompute()

fillet = body.newObject("PartDesign::Fillet", "Fillet")
fillet.Base = (pocket4, edges_at(pocket4, [(93.675, -15, 1.5), (-93.675, -15, 1.5)]))
fillet.Radius = 3

# Sketch on XY plane
sketch8 = body.newObject("Sketcher::SketchObject", "Sketch007")
sketch8.AttachmentSupport = (doc.getObject("XY_Plane"), [""])
sketch8.MapMode = "FlatFace"
sketch8.AttachmentOffset = App.Placement(Vector(0, 0, 3), App.Rotation())
sketch8.addGeometry([
    Part.Circle(Vector(-35, 45, 0), Vector(0, 0, 1), 1.5),
    Part.Circle(Vector(35, 45, 0), Vector(0, 0, 1), 1.5),
], False)
sketch8.addConstraint([
    Sketcher.Constraint("Equal", 0, 1),
    Sketcher.Constraint("Symmetric", 0, 3, 1, 3, -2),
    Sketcher.Constraint("Diameter", 0, 3.0),
    Sketcher.Constraint("DistanceX", 0, 3, -1, 1, 35.0),
    Sketcher.Constraint("DistanceY", -1, 1, 0, 3, 45.0),
])
pocket5 = body.newObject("PartDesign::Pocket", "Pocket004")
pocket5.Profile = sketch8
pocket5.Length = 10

# Sketch on XY plane
sketch9 = body.newObject("Sketcher::SketchObject", "Sketch008")
sketch9.AttachmentSupport = (doc.getObject("XY_Plane"), [""])
sketch9.MapMode = "FlatFace"
sketch9.AttachmentOffset = App.Placement(Vector(0, 0, 3), App.Rotation())
sketch9.addGeometry([
    Part.LineSegment(Vector(-54.4, -75.9, 0), Vector(-54.4, -77.9, 0)),  # 0
    Part.LineSegment(Vector(-54.4, -77.9, 0), Vector(-29.4, -78.4, 0)),  # 1
    Part.LineSegment(Vector(-29.4, -78.4, 0), Vector(-29.4, -76.5, 0)),  # 2
    Part.LineSegment(Vector(-29.4, -76.5, 0), Vector(-54.4, -75.9, 0)),  # 3
    Part.LineSegment(Vector(28.5, -76.5, 0), Vector(28.5, -78.4, 0)),  # 4
    Part.LineSegment(Vector(28.5, -78.4, 0), Vector(53.5, -77.9, 0)),  # 5
    Part.LineSegment(Vector(53.5, -77.9, 0), Vector(53.5, -75.9, 0)),  # 6
    Part.LineSegment(Vector(53.5, -75.9, 0), Vector(28.5, -76.5, 0)),  # 7
], False)
sketch9.addConstraint([
    Sketcher.Constraint("Coincident", 0, 2, 1, 1),
    Sketcher.Constraint("Coincident", 1, 2, 2, 1),
    Sketcher.Constraint("Coincident", 2, 2, 3, 1),
    Sketcher.Constraint("Coincident", 3, 2, 0, 1),
    Sketcher.Constraint("Coincident", 4, 2, 5, 1),
    Sketcher.Constraint("Coincident", 5, 2, 6, 1),
    Sketcher.Constraint("Coincident", 6, 2, 7, 1),
    Sketcher.Constraint("Coincident", 7, 2, 4, 1),
    Sketcher.Constraint("Vertical", 0),
    Sketcher.Constraint("Vertical", 2),
    Sketcher.Constraint("Vertical", 4),
    Sketcher.Constraint("Vertical", 6),
    Sketcher.Constraint("Horizontal", 1, 2, 4, 2),
    Sketcher.Constraint("Horizontal", 0, 2, 5, 2),
    Sketcher.Constraint("Horizontal", 3, 2, 6, 2),
    Sketcher.Constraint("Horizontal", 2, 2, 7, 2),
    Sketcher.Constraint("Equal", 1, 5),
    Sketcher.Constraint("DistanceY", 0, 2, 0, 1, 2.0),
    Sketcher.Constraint("DistanceX", 0, 2, 1, 2, 25.0),
    Sketcher.Constraint("DistanceY", 2, 1, 2, 2, 1.996922),
    Sketcher.Constraint("Distance", 3, 25.00561),
    Sketcher.Constraint("DistanceX", 0, 2, -1, 1, 54.369698),
    Sketcher.Constraint("DistanceY", 0, 2, -1, 1, 77.921198),
    Sketcher.Constraint("DistanceX", -1, 1, 4, 2, 28.544668),
])
pocket6 = body.newObject("PartDesign::Pocket", "Pocket005")
pocket6.Profile = sketch9
pocket6.Length = 10

# Sketch on XY plane
sketch10 = body.newObject("Sketcher::SketchObject", "Sketch009")
sketch10.AttachmentSupport = (doc.getObject("XY_Plane"), [""])
sketch10.MapMode = "FlatFace"
sketch10.addGeometry([
    Part.LineSegment(Vector(7.4, -87.1, 0), Vector(7.4, -90.1, 0)),
    Part.LineSegment(Vector(7.4, -90.1, 0), Vector(-7.6, -90.1, 0)),
    Part.LineSegment(Vector(-7.6, -90.1, 0), Vector(-7.6, -87.1, 0)),
    Part.LineSegment(Vector(-7.6, -87.1, 0), Vector(7.4, -87.1, 0)),
], False)
sketch10.addConstraint([
    Sketcher.Constraint("Coincident", 0, 2, 1, 1),
    Sketcher.Constraint("Coincident", 1, 2, 2, 1),
    Sketcher.Constraint("Coincident", 2, 2, 3, 1),
    Sketcher.Constraint("Coincident", 3, 2, 0, 1),
    Sketcher.Constraint("Vertical", 0),
    Sketcher.Constraint("Horizontal", 1),
    Sketcher.Constraint("Vertical", 2),
    Sketcher.Constraint("Horizontal", 3),
    Sketcher.Constraint("DistanceX", 1, 2, 1, 1, 15.0),
    Sketcher.Constraint("DistanceY", 0, 2, 0, 1, 3.0),
    Sketcher.Constraint("DistanceX", -1, 1, 0, 2, 7.352022),
    Sketcher.Constraint("DistanceY", 0, 2, -1, 1, 90.145273),
])
pocket7 = body.newObject("PartDesign::Pocket", "Pocket006")
pocket7.Profile = sketch10
pocket7.Length = 10
pocket7.Reversed = True

# Sketch on XY plane
sketch11 = body.newObject("Sketcher::SketchObject", "Sketch010")
sketch11.AttachmentSupport = (doc.getObject("XY_Plane"), [""])
sketch11.MapMode = "FlatFace"
sketch11.AttachmentOffset = App.Placement(Vector(0, 0, 3), App.Rotation())
sketch11.addGeometry([
    Part.LineSegment(Vector(12.2, -54.2, 0), Vector(12.2, -64.2, 0)),  # 0
    Part.LineSegment(Vector(12.2, -64.2, 0), Vector(15.2, -64.2, 0)),  # 1
    Part.LineSegment(Vector(15.2, -64.2, 0), Vector(15.2, -54.2, 0)),  # 2
    Part.LineSegment(Vector(15.2, -54.2, 0), Vector(12.2, -54.2, 0)),  # 3
    Part.LineSegment(Vector(-15.2, -54.2, 0), Vector(-15.2, -64.2, 0)),  # 4
    Part.LineSegment(Vector(-15.2, -64.2, 0), Vector(-12.2, -64.2, 0)),  # 5
    Part.LineSegment(Vector(-12.2, -64.2, 0), Vector(-12.2, -54.2, 0)),  # 6
    Part.LineSegment(Vector(-12.2, -54.2, 0), Vector(-15.2, -54.2, 0)),  # 7
], False)
sketch11.addConstraint([
    Sketcher.Constraint("Coincident", 0, 2, 1, 1),
    Sketcher.Constraint("Coincident", 1, 2, 2, 1),
    Sketcher.Constraint("Coincident", 2, 2, 3, 1),
    Sketcher.Constraint("Coincident", 3, 2, 0, 1),
    Sketcher.Constraint("Coincident", 4, 2, 5, 1),
    Sketcher.Constraint("Coincident", 5, 2, 6, 1),
    Sketcher.Constraint("Coincident", 6, 2, 7, 1),
    Sketcher.Constraint("Coincident", 7, 2, 4, 1),
    Sketcher.Constraint("Vertical", 0),
    Sketcher.Constraint("Horizontal", 1),
    Sketcher.Constraint("Vertical", 2),
    Sketcher.Constraint("Horizontal", 3),
    Sketcher.Constraint("Vertical", 4),
    Sketcher.Constraint("Horizontal", 5),
    Sketcher.Constraint("Vertical", 6),
    Sketcher.Constraint("Horizontal", 7),
    Sketcher.Constraint("Symmetric", 1, 2, 4, 2, -2),
    Sketcher.Constraint("Symmetric", 3, 2, 6, 2, -2),
    Sketcher.Constraint("DistanceX", 1, 1, 1, 2, 3.0),
    Sketcher.Constraint("DistanceY", 0, 2, 0, 1, 10.0),
    Sketcher.Constraint("DistanceX", -1, 1, 0, 2, 12.2),
    Sketcher.Constraint("DistanceY", 0, 2, -1, 1, 64.235273),
])
pocket8 = body.newObject("PartDesign::Pocket", "Pocket007")
pocket8.Profile = sketch11
pocket8.Length = 10

# Sketch on XY plane
sketch12 = body.newObject("Sketcher::SketchObject", "Sketch011")
sketch12.AttachmentSupport = (doc.getObject("XY_Plane"), [""])
sketch12.MapMode = "FlatFace"
sketch12.AttachmentOffset = App.Placement(Vector(0, 0, 3), App.Rotation())
sketch12.addGeometry([
    Part.Circle(Vector(25.3, -35.3, 0), Vector(0, 0, 1), 1.8),
    Part.Circle(Vector(-25.5, -19.9, 0), Vector(0, 0, 1), 1.8),
    Part.Circle(Vector(25.3, 13, 0), Vector(0, 0, 1), 1.8),
    Part.Circle(Vector(-25.5, 8, 0), Vector(0, 0, 1), 1.8),
], False)
sketch12.addConstraint([
    Sketcher.Constraint("Equal", 0, 1),
    Sketcher.Constraint("Equal", 1, 2),
    Sketcher.Constraint("Equal", 2, 3),
    Sketcher.Constraint("Vertical", 0, 3, 2, 3),
    Sketcher.Constraint("Vertical", 1, 3, 3, 3),
    Sketcher.Constraint("Diameter", 0, 3.5),
    Sketcher.Constraint("DistanceY", -1, 1, 2, 3, 13.0),
    Sketcher.Constraint("DistanceY", -1, 1, 3, 3, 8.0),
    Sketcher.Constraint("DistanceX", -1, 1, 0, 3, 25.3),
    Sketcher.Constraint("DistanceY", 0, 3, -1, 1, 35.3),
    Sketcher.Constraint("DistanceX", 1, 3, -1, 1, 25.5),
    Sketcher.Constraint("DistanceY", 1, 3, -1, 1, 19.9),
])
pocket9 = body.newObject("PartDesign::Pocket", "Pocket008")
pocket9.Profile = sketch12
pocket9.Length = 10

doc.recompute()
